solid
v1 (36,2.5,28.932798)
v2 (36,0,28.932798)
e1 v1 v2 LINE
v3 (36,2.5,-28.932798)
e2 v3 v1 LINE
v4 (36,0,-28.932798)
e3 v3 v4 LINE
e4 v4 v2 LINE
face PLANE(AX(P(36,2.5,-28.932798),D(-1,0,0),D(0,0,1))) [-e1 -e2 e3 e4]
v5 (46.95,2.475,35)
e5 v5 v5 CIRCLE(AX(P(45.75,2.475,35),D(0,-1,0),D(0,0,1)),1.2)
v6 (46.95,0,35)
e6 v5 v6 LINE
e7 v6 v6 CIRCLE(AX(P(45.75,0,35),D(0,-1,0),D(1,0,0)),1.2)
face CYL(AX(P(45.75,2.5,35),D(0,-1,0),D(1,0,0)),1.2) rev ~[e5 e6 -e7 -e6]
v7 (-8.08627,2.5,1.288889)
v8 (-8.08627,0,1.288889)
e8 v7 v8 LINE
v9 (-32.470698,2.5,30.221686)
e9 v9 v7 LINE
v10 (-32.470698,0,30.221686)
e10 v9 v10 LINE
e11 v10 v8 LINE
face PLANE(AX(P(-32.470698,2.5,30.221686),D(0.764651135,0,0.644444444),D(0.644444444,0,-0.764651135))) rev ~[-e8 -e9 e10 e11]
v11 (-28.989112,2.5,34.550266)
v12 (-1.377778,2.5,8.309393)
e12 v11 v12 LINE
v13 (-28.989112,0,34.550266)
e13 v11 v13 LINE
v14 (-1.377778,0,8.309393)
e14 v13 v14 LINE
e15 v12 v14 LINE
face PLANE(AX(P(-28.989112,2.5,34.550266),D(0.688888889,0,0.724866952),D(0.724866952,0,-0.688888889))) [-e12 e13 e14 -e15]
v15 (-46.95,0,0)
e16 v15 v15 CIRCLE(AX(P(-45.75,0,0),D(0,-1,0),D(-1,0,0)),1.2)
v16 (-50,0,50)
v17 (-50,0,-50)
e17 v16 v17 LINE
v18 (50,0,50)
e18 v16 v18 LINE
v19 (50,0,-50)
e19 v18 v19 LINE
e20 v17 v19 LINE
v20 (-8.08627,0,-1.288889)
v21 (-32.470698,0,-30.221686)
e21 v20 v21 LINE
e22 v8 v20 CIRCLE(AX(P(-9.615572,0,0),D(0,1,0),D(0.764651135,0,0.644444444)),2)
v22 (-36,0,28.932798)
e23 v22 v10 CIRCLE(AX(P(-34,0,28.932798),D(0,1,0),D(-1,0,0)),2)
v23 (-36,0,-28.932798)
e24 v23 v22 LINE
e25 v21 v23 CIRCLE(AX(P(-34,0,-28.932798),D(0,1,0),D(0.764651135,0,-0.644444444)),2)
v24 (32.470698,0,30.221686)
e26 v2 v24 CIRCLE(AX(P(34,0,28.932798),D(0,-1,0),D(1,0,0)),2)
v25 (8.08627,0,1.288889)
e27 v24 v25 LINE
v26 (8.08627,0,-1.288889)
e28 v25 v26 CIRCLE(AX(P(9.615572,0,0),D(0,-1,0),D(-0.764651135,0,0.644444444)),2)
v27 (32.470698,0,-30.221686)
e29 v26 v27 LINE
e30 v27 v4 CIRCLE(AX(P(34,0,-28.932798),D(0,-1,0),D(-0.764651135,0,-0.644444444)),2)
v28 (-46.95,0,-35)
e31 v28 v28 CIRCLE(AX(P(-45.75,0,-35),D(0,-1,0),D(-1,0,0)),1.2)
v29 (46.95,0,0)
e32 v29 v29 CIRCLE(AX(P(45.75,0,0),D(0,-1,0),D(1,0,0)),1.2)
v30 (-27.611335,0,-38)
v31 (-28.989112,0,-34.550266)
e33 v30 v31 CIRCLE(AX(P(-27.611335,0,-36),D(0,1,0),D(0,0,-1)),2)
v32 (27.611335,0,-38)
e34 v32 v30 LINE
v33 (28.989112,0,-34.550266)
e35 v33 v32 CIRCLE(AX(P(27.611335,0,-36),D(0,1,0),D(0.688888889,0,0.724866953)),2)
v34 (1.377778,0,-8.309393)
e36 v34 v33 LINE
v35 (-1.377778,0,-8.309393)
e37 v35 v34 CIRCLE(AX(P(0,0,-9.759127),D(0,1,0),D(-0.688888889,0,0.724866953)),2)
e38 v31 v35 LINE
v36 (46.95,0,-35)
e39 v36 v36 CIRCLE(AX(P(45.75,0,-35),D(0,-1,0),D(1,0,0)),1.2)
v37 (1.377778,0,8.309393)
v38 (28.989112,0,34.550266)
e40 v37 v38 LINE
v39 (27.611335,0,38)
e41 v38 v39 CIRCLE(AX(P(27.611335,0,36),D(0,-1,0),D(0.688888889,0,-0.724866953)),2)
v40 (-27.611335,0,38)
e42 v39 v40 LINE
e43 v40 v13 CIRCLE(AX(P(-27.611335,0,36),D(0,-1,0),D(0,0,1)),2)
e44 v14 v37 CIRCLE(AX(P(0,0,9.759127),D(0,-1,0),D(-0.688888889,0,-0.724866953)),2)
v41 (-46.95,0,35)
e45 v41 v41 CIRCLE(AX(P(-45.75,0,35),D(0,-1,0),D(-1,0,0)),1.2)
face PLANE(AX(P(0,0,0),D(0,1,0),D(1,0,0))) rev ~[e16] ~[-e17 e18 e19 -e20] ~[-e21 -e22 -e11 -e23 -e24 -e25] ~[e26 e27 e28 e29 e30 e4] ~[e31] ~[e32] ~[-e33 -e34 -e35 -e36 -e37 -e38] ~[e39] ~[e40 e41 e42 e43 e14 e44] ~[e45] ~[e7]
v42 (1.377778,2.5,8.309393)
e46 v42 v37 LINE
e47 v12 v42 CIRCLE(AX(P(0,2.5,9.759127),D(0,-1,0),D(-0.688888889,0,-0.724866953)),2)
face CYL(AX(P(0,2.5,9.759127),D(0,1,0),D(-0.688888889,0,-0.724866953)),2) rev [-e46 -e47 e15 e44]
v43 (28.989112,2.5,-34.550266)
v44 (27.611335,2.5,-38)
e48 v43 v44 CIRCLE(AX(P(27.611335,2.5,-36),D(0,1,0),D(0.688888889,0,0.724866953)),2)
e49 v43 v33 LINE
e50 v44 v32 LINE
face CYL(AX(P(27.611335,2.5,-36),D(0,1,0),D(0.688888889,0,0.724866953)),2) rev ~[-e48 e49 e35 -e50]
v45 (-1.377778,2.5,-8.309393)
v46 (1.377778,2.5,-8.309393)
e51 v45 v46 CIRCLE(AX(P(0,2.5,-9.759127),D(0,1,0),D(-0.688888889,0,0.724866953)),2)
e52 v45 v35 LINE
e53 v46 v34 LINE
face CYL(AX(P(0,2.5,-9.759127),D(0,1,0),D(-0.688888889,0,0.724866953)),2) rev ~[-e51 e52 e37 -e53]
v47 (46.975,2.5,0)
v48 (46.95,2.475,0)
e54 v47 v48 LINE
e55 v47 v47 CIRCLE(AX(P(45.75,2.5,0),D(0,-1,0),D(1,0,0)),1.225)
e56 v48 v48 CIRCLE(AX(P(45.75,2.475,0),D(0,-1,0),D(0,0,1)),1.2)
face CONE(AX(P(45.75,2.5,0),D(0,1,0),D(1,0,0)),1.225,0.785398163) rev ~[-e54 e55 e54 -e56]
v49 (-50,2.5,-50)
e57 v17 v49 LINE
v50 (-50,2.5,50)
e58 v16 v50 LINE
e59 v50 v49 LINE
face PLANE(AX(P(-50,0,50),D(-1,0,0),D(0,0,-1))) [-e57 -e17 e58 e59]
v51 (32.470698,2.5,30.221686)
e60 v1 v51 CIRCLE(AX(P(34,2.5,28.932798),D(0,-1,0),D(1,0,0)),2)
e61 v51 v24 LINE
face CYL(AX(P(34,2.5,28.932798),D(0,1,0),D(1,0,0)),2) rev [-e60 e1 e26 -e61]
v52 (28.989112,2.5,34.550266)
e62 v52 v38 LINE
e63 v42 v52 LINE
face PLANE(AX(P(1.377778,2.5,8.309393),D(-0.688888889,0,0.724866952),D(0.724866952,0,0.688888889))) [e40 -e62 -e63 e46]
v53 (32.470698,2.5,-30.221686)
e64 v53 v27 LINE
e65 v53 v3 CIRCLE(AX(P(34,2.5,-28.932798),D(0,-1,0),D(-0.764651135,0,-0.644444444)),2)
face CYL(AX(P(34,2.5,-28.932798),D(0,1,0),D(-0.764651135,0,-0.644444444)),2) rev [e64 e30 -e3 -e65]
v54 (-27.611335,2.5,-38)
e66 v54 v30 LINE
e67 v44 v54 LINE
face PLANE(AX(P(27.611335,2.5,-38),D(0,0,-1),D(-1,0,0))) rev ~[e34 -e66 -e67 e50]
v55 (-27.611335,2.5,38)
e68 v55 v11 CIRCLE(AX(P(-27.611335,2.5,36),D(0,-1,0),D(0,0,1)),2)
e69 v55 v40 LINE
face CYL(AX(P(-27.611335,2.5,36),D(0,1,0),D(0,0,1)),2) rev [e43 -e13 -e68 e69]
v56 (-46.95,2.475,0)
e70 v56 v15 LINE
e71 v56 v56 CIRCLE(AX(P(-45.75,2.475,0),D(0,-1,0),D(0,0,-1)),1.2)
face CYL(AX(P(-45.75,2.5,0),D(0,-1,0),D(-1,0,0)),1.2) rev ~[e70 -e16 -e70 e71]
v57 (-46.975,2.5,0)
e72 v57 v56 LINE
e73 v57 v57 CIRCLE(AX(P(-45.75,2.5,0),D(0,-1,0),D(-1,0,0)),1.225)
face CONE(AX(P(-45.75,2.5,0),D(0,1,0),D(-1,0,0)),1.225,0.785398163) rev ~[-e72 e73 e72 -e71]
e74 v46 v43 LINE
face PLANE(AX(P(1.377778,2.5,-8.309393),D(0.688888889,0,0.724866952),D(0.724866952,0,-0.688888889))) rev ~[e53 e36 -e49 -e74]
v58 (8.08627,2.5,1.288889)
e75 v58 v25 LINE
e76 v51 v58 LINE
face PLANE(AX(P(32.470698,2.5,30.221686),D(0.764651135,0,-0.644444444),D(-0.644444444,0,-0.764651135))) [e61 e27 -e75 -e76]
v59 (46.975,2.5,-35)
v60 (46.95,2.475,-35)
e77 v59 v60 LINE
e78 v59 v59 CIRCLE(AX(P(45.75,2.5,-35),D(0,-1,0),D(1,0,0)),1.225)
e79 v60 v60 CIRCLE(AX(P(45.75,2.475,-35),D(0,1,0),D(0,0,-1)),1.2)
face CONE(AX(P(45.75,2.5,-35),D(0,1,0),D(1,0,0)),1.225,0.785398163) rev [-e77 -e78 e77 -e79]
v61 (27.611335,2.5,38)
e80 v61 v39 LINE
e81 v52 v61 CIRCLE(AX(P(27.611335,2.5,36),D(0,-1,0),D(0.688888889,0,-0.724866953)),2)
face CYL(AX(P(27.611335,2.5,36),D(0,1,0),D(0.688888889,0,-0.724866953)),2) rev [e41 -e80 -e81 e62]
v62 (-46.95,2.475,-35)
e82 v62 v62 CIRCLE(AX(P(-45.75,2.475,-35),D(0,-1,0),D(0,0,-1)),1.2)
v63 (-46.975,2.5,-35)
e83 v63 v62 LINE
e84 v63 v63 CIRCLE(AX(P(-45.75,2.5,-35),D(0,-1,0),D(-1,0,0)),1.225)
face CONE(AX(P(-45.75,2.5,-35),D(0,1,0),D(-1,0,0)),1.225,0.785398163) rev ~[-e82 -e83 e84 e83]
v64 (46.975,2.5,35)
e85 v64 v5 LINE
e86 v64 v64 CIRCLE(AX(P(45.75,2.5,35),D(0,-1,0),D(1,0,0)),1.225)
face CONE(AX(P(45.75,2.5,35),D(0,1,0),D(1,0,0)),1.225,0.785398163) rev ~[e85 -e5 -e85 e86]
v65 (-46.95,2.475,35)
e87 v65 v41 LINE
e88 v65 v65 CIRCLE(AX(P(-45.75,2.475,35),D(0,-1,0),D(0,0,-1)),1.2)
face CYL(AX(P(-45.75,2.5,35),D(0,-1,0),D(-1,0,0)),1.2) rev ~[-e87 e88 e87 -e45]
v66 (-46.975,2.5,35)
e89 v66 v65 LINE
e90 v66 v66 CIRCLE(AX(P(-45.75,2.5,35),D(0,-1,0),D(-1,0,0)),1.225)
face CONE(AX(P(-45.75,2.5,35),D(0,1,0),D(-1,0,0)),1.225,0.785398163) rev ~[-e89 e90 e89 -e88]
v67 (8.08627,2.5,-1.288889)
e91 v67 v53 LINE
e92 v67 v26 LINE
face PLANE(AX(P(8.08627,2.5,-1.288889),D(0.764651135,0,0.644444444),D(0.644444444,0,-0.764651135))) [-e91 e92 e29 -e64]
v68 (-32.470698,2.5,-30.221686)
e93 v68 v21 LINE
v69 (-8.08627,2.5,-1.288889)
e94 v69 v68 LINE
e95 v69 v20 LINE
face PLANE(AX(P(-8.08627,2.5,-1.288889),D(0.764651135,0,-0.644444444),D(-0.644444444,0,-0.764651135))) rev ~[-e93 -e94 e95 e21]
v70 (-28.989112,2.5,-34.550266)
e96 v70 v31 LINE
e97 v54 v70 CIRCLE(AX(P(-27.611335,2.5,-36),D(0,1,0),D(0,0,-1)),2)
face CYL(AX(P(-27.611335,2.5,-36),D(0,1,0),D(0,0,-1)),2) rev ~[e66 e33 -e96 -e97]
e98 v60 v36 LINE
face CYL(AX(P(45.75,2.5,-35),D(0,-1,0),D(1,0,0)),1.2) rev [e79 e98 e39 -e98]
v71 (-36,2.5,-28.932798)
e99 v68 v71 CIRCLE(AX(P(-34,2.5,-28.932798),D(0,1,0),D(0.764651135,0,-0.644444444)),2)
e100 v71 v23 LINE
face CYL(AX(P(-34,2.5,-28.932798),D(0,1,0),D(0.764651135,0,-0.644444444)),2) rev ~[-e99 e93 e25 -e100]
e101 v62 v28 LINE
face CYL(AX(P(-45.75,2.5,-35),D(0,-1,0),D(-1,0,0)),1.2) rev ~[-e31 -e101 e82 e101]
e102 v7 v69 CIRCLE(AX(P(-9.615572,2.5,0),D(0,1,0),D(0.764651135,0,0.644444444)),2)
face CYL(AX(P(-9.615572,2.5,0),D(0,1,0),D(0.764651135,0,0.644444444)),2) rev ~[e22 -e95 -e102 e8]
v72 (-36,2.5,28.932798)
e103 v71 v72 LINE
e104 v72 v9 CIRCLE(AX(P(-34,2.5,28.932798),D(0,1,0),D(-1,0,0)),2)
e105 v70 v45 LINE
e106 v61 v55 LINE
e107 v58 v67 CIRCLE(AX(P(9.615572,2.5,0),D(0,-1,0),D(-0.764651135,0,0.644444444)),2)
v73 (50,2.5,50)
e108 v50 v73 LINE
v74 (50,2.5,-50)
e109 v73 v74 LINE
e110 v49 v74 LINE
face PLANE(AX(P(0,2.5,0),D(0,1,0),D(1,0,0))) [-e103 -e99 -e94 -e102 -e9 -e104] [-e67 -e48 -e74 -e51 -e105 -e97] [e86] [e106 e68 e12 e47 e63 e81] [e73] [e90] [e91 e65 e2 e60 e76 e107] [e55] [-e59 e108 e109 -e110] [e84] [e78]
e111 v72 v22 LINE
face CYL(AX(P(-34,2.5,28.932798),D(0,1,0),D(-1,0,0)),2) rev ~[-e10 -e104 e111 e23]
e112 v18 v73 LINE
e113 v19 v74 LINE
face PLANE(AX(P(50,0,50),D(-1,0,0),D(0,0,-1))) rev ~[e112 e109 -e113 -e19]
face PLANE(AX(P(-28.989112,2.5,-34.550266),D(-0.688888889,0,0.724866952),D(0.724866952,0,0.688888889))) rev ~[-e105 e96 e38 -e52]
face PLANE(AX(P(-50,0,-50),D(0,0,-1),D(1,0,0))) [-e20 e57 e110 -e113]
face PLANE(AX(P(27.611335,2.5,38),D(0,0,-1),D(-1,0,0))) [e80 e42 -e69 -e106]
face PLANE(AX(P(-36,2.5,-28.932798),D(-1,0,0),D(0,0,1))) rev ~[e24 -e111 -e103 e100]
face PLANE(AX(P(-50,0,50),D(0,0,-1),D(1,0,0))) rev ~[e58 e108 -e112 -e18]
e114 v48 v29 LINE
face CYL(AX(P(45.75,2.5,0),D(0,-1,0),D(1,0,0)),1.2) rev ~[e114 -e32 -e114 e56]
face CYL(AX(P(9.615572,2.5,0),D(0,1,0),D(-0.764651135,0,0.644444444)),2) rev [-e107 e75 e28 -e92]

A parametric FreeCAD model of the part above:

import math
import FreeCAD as App
import Part
import Sketcher
from FreeCAD import Vector
Q = App.Units.Quantity


def add_polygon(sketch, points):
    """Adds a closed chain of lines whose ends are joined by coincident constraints."""
    first, n = sketch.GeometryCount, len(points)
    for a, b in zip(points, points[1:] + points[:1]):
        sketch.addGeometry(Part.LineSegment(App.Vector(*a, 0), App.Vector(*b, 0)), False)
    for i in range(n):
        sketch.addConstraint(Sketcher.Constraint("Coincident", first + i, 2, first + (i + 1) % n, 1))

doc = App.newDocument("Part")
body = doc.addObject("PartDesign::Body", "Body")

# Sketch on XZ plane
sketch1 = body.newObject("Sketcher::SketchObject", "Sketch")
sketch1.AttachmentSupport = (doc.getObject("XZ_Plane"), [""])
sketch1.MapMode = "FlatFace"
add_polygon(sketch1, [(-50, -50), (-50, 50), (50, 50), (50, -50)])  # lines 0-3
sketch1.addConstraint([
    Sketcher.Constraint("Vertical", 0),
    Sketcher.Constraint("Horizontal", 1),
    Sketcher.Constraint("Vertical", 2),
    Sketcher.Constraint("Horizontal", 3),
    Sketcher.Constraint("Symmetric", 0, 2, 2, 2, -1, 1),
    Sketcher.Constraint("Equal", 3, 0),
    Sketcher.Constraint("DistanceX", 1, 1, 1, 2, Q("100 mm")),
])
pad1 = body.newObject("PartDesign::Pad", "Pad")
pad1.Profile = sketch1
pad1.Length = 2.5
pad1.Reversed = True

# Sketch on XZ plane
sketch2 = body.newObject("Sketcher::SketchObject", "Sketch001")
sketch2.AttachmentSupport = (doc.getObject("XZ_Plane"), [""])
sketch2.MapMode = "FlatFace"
sketch2.AttachmentOffset = App.Placement(Vector(0, 0, -2.5), App.Rotation())
sketch2.addGeometry(Part.Circle(Vector(-45.8, -35, 0), Vector(0, 0, 1), 1.2), False)
sketch2.addConstraint([
    Sketcher.Constraint("Diameter", 0, Q("2.4 mm")),
    Sketcher.Constraint("DistanceY", 0, 3, -1, 1, Q("35 mm")),
    Sketcher.Constraint("DistanceX", 0, 3, -1, 1, Q("45.75 mm")),
])
doc.recompute()
hole = body.newObject("PartDesign::Hole", "Hole")
hole.Profile = sketch2
hole.ThreadType = "None"
hole.Diameter = 2.4
hole.DepthType = "ThroughAll"
hole.HoleCutType = "Countersink"
hole.HoleCutDiameter = 2.45
hole.HoleCutCountersinkAngle = 90
hole.Reversed = True
doc.recompute()

linearpattern = body.newObject("PartDesign::LinearPattern", "LinearPattern")
linearpattern.Originals = [hole]
linearpattern.Direction = (doc.getObject("Z_Axis"), [""])
linearpattern.Mode = "offset"
linearpattern.Offset = 35
linearpattern.Occurrences = 3
body.Tip = linearpattern
doc.recompute()

mirrored = body.newObject("PartDesign::Mirrored", "Mirrored")
mirrored.Originals = [hole]
mirrored.MirrorPlane = (doc.getObject("YZ_Plane"), [""])
body.Tip = mirrored

# Sketch on XZ plane
sketch3 = body.newObject("Sketcher::SketchObject", "Sketch002")
sketch3.AttachmentSupport = (doc.getObject("XZ_Plane"), [""])
sketch3.MapMode = "FlatFace"
sketch3.AttachmentOffset = App.Placement(Vector(0, 0, -2.5), App.Rotation())
sketch3.addGeometry(Part.Circle(Vector(45.8, 0, 0), Vector(0, 0, 1), 1.2), False)
sketch3.addConstraint([
    Sketcher.Constraint("PointOnObject", 0, 3, -1),
    Sketcher.Constraint("Diameter", 0, Q("2.4 mm")),
    Sketcher.Constraint("DistanceX", -1, 1, 0, 3, Q("45.75 mm")),
])
doc.recompute()
hole2 = body.newObject("PartDesign::Hole", "Hole001")
hole2.Profile = sketch3
hole2.ThreadType = "None"
hole2.Diameter = 2.4
hole2.DepthType = "ThroughAll"
hole2.HoleCutType = "Countersink"
hole2.HoleCutDiameter = 2.45
hole2.HoleCutCountersinkAngle = 90
hole2.Reversed = True

# Sketch on XZ plane
sketch4 = body.newObject("Sketcher::SketchObject", "Sketch003")
sketch4.AttachmentSupport = (doc.getObject("XZ_Plane"), [""])
sketch4.MapMode = "FlatFace"
sketch4.AttachmentOffset = App.Placement(Vector(0, 0, -2.5), App.Rotation())
sketch4.addGeometry(Part.Circle(Vector(45.8, 35, 0), Vector(0, 0, 1), 1.2), False)
sketch4.addConstraint([
    Sketcher.Constraint("Diameter", 0, Q("2.4 mm")),
    Sketcher.Constraint("DistanceY", -1, 1, 0, 3, Q("35 mm")),
    Sketcher.Constraint("DistanceX", -1, 1, 0, 3, Q("45.75 mm")),
])
doc.recompute()
hole3 = body.newObject("PartDesign::Hole", "Hole002")
hole3.Profile = sketch4
hole3.ThreadType = "None"
hole3.Diameter = 2.4
hole3.DepthType = "ThroughAll"
hole3.HoleCutType = "Countersink"
hole3.HoleCutDiameter = 2.45
hole3.HoleCutCountersinkAngle = 90
hole3.Reversed = True

# Sketch on XZ plane
sketch5 = body.newObject("Sketcher::SketchObject", "Sketch004")
sketch5.AttachmentSupport = (doc.getObject("XZ_Plane"), [""])
sketch5.MapMode = "FlatFace"
sketch5.AttachmentOffset = App.Placement(Vector(0, 0, -2.5), App.Rotation())
sketch5.addGeometry([
    Part.LineSegment(Vector(1.4, -8.3, 0), Vector(29, -34.6, 0)),  # 0
    Part.ArcOfCircle(Part.Circle(Vector(27.6, -36, 0), Vector(0, 0, 1), 2), math.radians(-90), math.radians(46)),  # 1
    Part.LineSegment(Vector(27.6, -38, 0), Vector(-27.6, -38, 0)),  # 2
    Part.ArcOfCircle(Part.Circle(Vector(-27.6, -36, 0), Vector(0, 0, 1), 2), math.radians(134), math.radians(270)),  # 3
    Part.LineSegment(Vector(-29, -34.6, 0), Vector(-1.4, -8.3, 0)),  # 4
    Part.ArcOfCircle(Part.Circle(Vector(0, -9.8, 0), Vector(0, 0, 1), 2), math.radians(46), math.radians(134)),  # 5
    Part.LineSegment(Vector(-27.6, 38, 0), Vector(27.6, 38, 0)),  # 6
    Part.ArcOfCircle(Part.Circle(Vector(27.6, 36, 0), Vector(0, 0, 1), 2), math.radians(-46), math.radians(90)),  # 7
    Part.LineSegment(Vector(29, 34.6, 0), Vector(1.4, 8.3, 0)),  # 8
    Part.ArcOfCircle(Part.Circle(Vector(0, 9.8, 0), Vector(0, 0, 1), 2), math.radians(-134), math.radians(-46)),  # 9
    Part.LineSegment(Vector(-1.4, 8.3, 0), Vector(-29, 34.6, 0)),  # 10
    Part.ArcOfCircle(Part.Circle(Vector(-27.6, 36, 0), Vector(0, 0, 1), 2), math.radians(90), math.radians(226)),  # 11
    Part.LineSegment(Vector(-36, -28.9, 0), Vector(-36, 28.9, 0)),  # 12
    Part.ArcOfCircle(Part.Circle(Vector(-34, 28.9, 0), Vector(0, 0, 1), 2), math.radians(40), math.radians(180)),  # 13
    Part.LineSegment(Vector(-32.5, 30.2, 0), Vector(-8.1, 1.3, 0)),  # 14
    Part.ArcOfCircle(Part.Circle(Vector(-9.6, 0, 0), Vector(0, 0, 1), 2), math.radians(-40), math.radians(40)),  # 15
    Part.LineSegment(Vector(-8.1, -1.3, 0), Vector(-32.5, -30.2, 0)),  # 16
    Part.ArcOfCircle(Part.Circle(Vector(-34, -28.9, 0), Vector(0, 0, 1), 2), math.radians(180), math.radians(320)),  # 17
    Part.LineSegment(Vector(8.1, 1.3, 0), Vector(32.5, 30.2, 0)),  # 18
    Part.ArcOfCircle(Part.Circle(Vector(34, 28.9, 0), Vector(0, 0, 1), 2), math.radians(0), math.radians(140)),  # 19
    Part.LineSegment(Vector(36, 28.9, 0), Vector(36, -28.9, 0)),  # 20
    Part.ArcOfCircle(Part.Circle(Vector(34, -28.9, 0), Vector(0, 0, 1), 2), math.radians(-140), math.radians(0)),  # 21
    Part.LineSegment(Vector(32.5, -30.2, 0), Vector(8.1, -1.3, 0)),  # 22
    Part.ArcOfCircle(Part.Circle(Vector(9.6, 0, 0), Vector(0, 0, 1), 2), math.radians(140), math.radians(220)),  # 23
], False)
sketch5.addConstraint([
    Sketcher.Constraint("Tangent", 0, 2, 1, 2),
    Sketcher.Constraint("Tangent", 1, 1, 2, 1),
    Sketcher.Constraint("Tangent", 2, 2, 3, 2),
    Sketcher.Constraint("Tangent", 3, 1, 4, 1),
    Sketcher.Constraint("Tangent", 4, 2, 5, 2),
    Sketcher.Constraint("Tangent", 5, 1, 0, 1),
    Sketcher.Constraint("Tangent", 6, 2, 7, 2),
    Sketcher.Constraint("Tangent", 7, 1, 8, 1),
    Sketcher.Constraint("Tangent", 8, 2, 9, 2),
    Sketcher.Constraint("Tangent", 9, 1, 10, 1),
    Sketcher.Constraint("Tangent", 10, 2, 11, 2),
    Sketcher.Constraint("Tangent", 11, 1, 6, 1),
    Sketcher.Constraint("Tangent", 12, 2, 13, 2),
    Sketcher.Constraint("Tangent", 13, 1, 14, 1),
    Sketcher.Constraint("Tangent", 14, 2, 15, 2),
    Sketcher.Constraint("Tangent", 15, 1, 16, 1),
    Sketcher.Constraint("Tangent", 16, 2, 17, 2),
    Sketcher.Constraint("Tangent", 17, 1, 12, 1),
    Sketcher.Constraint("Tangent", 18, 2, 19, 2),
    Sketcher.Constraint("Tangent", 19, 1, 20, 1),
    Sketcher.Constraint("Tangent", 20, 2, 21, 2),
    Sketcher.Constraint("Tangent", 21, 1, 22, 1),
    Sketcher.Constraint("Tangent", 22, 2, 23, 2),
    Sketcher.Constraint("Tangent", 23, 1, 18, 1),
    Sketcher.Constraint("Horizontal", 2),
    Sketcher.Constraint("Horizontal", 6),
    Sketcher.Constraint("Vertical", 12),
    Sketcher.Constraint("Vertical", 20),
    Sketcher.Constraint("Equal", 1, 3),
    Sketcher.Constraint("Equal", 3, 5),
    Sketcher.Constraint("Equal", 5, 7),
    Sketcher.Constraint("Equal", 7, 9),
    Sketcher.Constraint("Equal", 9, 11),
    Sketcher.Constraint("Equal", 11, 13),
    Sketcher.Constraint("Equal", 13, 15),
    Sketcher.Constraint("Equal", 15, 17),
    Sketcher.Constraint("Equal", 17, 19),
    Sketcher.Constraint("Equal", 19, 21),
    Sketcher.Constraint("Equal", 21, 23),
    Sketcher.Constraint("Symmetric", 3, 3, 7, 3, -1, 1),
    Sketcher.Constraint("Symmetric", 5, 3, 9, 3, -1, 1),
    Sketcher.Constraint("Symmetric", 17, 3, 19, 3, -1, 1),
    Sketcher.Constraint("Symmetric", 15, 3, 23, 3, -1, 1),
    Sketcher.Constraint("Symmetric", 0, 2, 3, 1, -2),
    Sketcher.Constraint("Symmetric", 13, 1, 18, 2, -2),
    Sketcher.Constraint("Parallel", 0, 10),
    Sketcher.Constraint("Parallel", 14, 22),
    Sketcher.Constraint("Radius", 1, Q("2 mm")),
    Sketcher.Constraint("DistanceY", 1, 3, -1, 1, Q("36 mm")),
    Sketcher.Constraint("DistanceX", 13, 3, -1, 1, Q("34 mm")),
    Sketcher.Constraint("DistanceX", 2, 2, 2, 1, Q("55.222669 mm")),
    Sketcher.Constraint("Distance", 0, Q("38.09159 mm")),
    Sketcher.Constraint("DistanceY", 12, 1, 12, 2, Q("57.865595 mm")),
    Sketcher.Constraint("DistanceX", 15, 3, -1, 1, Q("9.615572 mm")),
])
pocket1 = body.newObject("PartDesign::Pocket", "Pocket")
pocket1.Profile = sketch5
pocket1.Length = 2.5
pocket1.Reversed = True

doc.recompute()
